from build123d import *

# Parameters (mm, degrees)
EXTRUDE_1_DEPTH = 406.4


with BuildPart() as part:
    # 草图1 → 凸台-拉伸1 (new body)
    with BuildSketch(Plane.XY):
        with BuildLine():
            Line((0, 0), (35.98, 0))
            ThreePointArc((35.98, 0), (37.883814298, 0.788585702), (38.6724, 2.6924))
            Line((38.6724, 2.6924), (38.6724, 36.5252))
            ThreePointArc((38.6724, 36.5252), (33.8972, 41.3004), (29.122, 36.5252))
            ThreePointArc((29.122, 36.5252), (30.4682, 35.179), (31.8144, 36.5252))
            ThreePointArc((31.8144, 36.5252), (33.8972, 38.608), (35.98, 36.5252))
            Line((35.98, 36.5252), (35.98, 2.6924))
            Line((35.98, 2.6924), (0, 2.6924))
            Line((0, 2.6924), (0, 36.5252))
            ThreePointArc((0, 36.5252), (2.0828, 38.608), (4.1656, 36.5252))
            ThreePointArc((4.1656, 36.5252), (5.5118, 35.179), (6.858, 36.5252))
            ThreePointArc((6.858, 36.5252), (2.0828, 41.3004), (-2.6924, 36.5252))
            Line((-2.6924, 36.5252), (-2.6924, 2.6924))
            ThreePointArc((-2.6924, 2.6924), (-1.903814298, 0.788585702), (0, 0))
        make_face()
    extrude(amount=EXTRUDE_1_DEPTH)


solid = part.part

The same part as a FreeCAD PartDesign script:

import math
import FreeCAD as App
import Part
import Sketcher
Q = App.Units.Quantity

doc = App.newDocument("Part")
body = doc.addObject("PartDesign::Body", "Body")

sketch1 = body.newObject("Sketcher::SketchObject", "Sketch")
sketch1.AttachmentSupport = (doc.getObject("XY_Plane"), [""])
sketch1.MapMode = "FlatFace"
sketch1.addGeometry(Part.LineSegment(App.Vector(0, 0, 0), App.Vector(35.98, 0, 0)), False)
sketch1.addGeometry(Part.ArcOfCircle(Part.Circle(App.Vector(35.98, 2.6924, 0), App.Vector(0, 0, 1), 2.6924), math.radians(-90), math.radians(0)), False)
sketch1.addGeometry(Part.LineSegment(App.Vector(38.6724, 2.6924, 0), App.Vector(38.6724, 36.5252, 0)), False)
sketch1.addGeometry(Part.ArcOfCircle(Part.Circle(App.Vector(33.8972, 36.5252, 0), App.Vector(0, 0, 1), 4.7752), math.radians(0), math.radians(180)), False)
sketch1.addGeometry(Part.ArcOfCircle(Part.Circle(App.Vector(30.4682, 36.5252, 0), App.Vector(0, 0, 1), 1.3462), math.radians(180), math.radians(360)), False)
sketch1.addGeometry(Part.ArcOfCircle(Part.Circle(App.Vector(33.8972, 36.5252, 0), App.Vector(0, 0, 1), 2.0828), math.radians(0), math.radians(180)), False)
sketch1.addGeometry(Part.LineSegment(App.Vector(35.98, 36.5252, 0), App.Vector(35.98, 2.6924, 0)), False)
sketch1.addGeometry(Part.LineSegment(App.Vector(35.98, 2.6924, 0), App.Vector(0, 2.6924, 0)), False)
sketch1.addGeometry(Part.LineSegment(App.Vector(0, 2.6924, 0), App.Vector(0, 36.5252, 0)), False)
sketch1.addGeometry(Part.ArcOfCircle(Part.Circle(App.Vector(2.0828, 36.5252, 0), App.Vector(0, 0, 1), 2.0828), math.radians(0), math.radians(180)), False)
sketch1.addGeometry(Part.ArcOfCircle(Part.Circle(App.Vector(5.5118, 36.5252, 0), App.Vector(0, 0, 1), 1.3462), math.radians(180), math.radians(360)), False)
sketch1.addGeometry(Part.ArcOfCircle(Part.Circle(App.Vector(2.0828, 36.5252, 0), App.Vector(0, 0, 1), 4.7752), math.radians(0), math.radians(180)), False)
sketch1.addGeometry(Part.LineSegment(App.Vector(-2.6924, 36.5252, 0), App.Vector(-2.6924, 2.6924, 0)), False)
sketch1.addGeometry(Part.ArcOfCircle(Part.Circle(App.Vector(0, 2.6924, 0), App.Vector(0, 0, 1), 2.6924), math.radians(180), math.radians(270)), False)
sketch1.addConstraint(Sketcher.Constraint("Tangent", 0, 2, 1, 1))
sketch1.addConstraint(Sketcher.Constraint("Tangent", 1, 2, 2, 1))
sketch1.addConstraint(Sketcher.Constraint("Tangent", 2, 2, 3, 1))
sketch1.addConstraint(Sketcher.Constraint("Tangent", 3, 2, 4, 1))
sketch1.addConstraint(Sketcher.Constraint("Tangent", 4, 2, 5, 2))
sketch1.addConstraint(Sketcher.Constraint("Tangent", 5, 1, 6, 1))
sketch1.addConstraint(Sketcher.Constraint("Coincident", 6, 2, 7, 1))
sketch1.addConstraint(Sketcher.Constraint("Coincident", 7, 2, 8, 1))
sketch1.addConstraint(Sketcher.Constraint("Tangent", 8, 2, 9, 2))
sketch1.addConstraint(Sketcher.Constraint("Tangent", 9, 1, 10, 1))
sketch1.addConstraint(Sketcher.Constraint("Tangent", 10, 2, 11, 1))
sketch1.addConstraint(Sketcher.Constraint("Tangent", 11, 2, 12, 1))
sketch1.addConstraint(Sketcher.Constraint("Tangent", 12, 2, 13, 1))
sketch1.addConstraint(Sketcher.Constraint("Tangent", 13, 2, 0, 1))
sketch1.addConstraint(Sketcher.Constraint("Horizontal", 0))
sketch1.addConstraint(Sketcher.Constraint("Vertical", 2))
sketch1.addConstraint(Sketcher.Constraint("Vertical", 6))
sketch1.addConstraint(Sketcher.Constraint("Horizontal", 7))
sketch1.addConstraint(Sketcher.Constraint("Vertical", 8))
sketch1.addConstraint(Sketcher.Constraint("Vertical", 12))
sketch1.addConstraint(Sketcher.Constraint("Coincident", 13, 2, -1, 1))
sketch1.addConstraint(Sketcher.Constraint("Coincident", 5, 3, 3, 3))
sketch1.addConstraint(Sketcher.Constraint("Coincident", 11, 3, 9, 3))
sketch1.addConstraint(Sketcher.Constraint("Coincident", 6, 2, 1, 3))
sketch1.addConstraint(Sketcher.Constraint("Coincident", 7, 2, 13, 3))
sketch1.addConstraint(Sketcher.Constraint("Equal", 5, 9))
sketch1.addConstraint(Sketcher.Constraint("Horizontal", 3, 3, 4, 3))
sketch1.addConstraint(Sketcher.Constraint("Horizontal", 5, 3, 9, 3))
sketch1.addConstraint(Sketcher.Constraint("Horizontal", 9, 3, 10, 3))
sketch1.addConstraint(Sketcher.Constraint("Radius", 1, Q("0.106 in")))
sketch1.addConstraint(Sketcher.Constraint("Radius", 3, Q("0.188 in")))
sketch1.addConstraint(Sketcher.Constraint("DistanceY", 2, 1, 2, 2, Q("1.332 in")))
sketch1.addConstraint(Sketcher.Constraint("DistanceX", 0, 1, 0, 2, Q("35.98 mm")))
pad1 = body.newObject("PartDesign::Pad", "Pad")
pad1.Profile = sketch1
pad1.Length = Q("16 in")

doc.recompute()
